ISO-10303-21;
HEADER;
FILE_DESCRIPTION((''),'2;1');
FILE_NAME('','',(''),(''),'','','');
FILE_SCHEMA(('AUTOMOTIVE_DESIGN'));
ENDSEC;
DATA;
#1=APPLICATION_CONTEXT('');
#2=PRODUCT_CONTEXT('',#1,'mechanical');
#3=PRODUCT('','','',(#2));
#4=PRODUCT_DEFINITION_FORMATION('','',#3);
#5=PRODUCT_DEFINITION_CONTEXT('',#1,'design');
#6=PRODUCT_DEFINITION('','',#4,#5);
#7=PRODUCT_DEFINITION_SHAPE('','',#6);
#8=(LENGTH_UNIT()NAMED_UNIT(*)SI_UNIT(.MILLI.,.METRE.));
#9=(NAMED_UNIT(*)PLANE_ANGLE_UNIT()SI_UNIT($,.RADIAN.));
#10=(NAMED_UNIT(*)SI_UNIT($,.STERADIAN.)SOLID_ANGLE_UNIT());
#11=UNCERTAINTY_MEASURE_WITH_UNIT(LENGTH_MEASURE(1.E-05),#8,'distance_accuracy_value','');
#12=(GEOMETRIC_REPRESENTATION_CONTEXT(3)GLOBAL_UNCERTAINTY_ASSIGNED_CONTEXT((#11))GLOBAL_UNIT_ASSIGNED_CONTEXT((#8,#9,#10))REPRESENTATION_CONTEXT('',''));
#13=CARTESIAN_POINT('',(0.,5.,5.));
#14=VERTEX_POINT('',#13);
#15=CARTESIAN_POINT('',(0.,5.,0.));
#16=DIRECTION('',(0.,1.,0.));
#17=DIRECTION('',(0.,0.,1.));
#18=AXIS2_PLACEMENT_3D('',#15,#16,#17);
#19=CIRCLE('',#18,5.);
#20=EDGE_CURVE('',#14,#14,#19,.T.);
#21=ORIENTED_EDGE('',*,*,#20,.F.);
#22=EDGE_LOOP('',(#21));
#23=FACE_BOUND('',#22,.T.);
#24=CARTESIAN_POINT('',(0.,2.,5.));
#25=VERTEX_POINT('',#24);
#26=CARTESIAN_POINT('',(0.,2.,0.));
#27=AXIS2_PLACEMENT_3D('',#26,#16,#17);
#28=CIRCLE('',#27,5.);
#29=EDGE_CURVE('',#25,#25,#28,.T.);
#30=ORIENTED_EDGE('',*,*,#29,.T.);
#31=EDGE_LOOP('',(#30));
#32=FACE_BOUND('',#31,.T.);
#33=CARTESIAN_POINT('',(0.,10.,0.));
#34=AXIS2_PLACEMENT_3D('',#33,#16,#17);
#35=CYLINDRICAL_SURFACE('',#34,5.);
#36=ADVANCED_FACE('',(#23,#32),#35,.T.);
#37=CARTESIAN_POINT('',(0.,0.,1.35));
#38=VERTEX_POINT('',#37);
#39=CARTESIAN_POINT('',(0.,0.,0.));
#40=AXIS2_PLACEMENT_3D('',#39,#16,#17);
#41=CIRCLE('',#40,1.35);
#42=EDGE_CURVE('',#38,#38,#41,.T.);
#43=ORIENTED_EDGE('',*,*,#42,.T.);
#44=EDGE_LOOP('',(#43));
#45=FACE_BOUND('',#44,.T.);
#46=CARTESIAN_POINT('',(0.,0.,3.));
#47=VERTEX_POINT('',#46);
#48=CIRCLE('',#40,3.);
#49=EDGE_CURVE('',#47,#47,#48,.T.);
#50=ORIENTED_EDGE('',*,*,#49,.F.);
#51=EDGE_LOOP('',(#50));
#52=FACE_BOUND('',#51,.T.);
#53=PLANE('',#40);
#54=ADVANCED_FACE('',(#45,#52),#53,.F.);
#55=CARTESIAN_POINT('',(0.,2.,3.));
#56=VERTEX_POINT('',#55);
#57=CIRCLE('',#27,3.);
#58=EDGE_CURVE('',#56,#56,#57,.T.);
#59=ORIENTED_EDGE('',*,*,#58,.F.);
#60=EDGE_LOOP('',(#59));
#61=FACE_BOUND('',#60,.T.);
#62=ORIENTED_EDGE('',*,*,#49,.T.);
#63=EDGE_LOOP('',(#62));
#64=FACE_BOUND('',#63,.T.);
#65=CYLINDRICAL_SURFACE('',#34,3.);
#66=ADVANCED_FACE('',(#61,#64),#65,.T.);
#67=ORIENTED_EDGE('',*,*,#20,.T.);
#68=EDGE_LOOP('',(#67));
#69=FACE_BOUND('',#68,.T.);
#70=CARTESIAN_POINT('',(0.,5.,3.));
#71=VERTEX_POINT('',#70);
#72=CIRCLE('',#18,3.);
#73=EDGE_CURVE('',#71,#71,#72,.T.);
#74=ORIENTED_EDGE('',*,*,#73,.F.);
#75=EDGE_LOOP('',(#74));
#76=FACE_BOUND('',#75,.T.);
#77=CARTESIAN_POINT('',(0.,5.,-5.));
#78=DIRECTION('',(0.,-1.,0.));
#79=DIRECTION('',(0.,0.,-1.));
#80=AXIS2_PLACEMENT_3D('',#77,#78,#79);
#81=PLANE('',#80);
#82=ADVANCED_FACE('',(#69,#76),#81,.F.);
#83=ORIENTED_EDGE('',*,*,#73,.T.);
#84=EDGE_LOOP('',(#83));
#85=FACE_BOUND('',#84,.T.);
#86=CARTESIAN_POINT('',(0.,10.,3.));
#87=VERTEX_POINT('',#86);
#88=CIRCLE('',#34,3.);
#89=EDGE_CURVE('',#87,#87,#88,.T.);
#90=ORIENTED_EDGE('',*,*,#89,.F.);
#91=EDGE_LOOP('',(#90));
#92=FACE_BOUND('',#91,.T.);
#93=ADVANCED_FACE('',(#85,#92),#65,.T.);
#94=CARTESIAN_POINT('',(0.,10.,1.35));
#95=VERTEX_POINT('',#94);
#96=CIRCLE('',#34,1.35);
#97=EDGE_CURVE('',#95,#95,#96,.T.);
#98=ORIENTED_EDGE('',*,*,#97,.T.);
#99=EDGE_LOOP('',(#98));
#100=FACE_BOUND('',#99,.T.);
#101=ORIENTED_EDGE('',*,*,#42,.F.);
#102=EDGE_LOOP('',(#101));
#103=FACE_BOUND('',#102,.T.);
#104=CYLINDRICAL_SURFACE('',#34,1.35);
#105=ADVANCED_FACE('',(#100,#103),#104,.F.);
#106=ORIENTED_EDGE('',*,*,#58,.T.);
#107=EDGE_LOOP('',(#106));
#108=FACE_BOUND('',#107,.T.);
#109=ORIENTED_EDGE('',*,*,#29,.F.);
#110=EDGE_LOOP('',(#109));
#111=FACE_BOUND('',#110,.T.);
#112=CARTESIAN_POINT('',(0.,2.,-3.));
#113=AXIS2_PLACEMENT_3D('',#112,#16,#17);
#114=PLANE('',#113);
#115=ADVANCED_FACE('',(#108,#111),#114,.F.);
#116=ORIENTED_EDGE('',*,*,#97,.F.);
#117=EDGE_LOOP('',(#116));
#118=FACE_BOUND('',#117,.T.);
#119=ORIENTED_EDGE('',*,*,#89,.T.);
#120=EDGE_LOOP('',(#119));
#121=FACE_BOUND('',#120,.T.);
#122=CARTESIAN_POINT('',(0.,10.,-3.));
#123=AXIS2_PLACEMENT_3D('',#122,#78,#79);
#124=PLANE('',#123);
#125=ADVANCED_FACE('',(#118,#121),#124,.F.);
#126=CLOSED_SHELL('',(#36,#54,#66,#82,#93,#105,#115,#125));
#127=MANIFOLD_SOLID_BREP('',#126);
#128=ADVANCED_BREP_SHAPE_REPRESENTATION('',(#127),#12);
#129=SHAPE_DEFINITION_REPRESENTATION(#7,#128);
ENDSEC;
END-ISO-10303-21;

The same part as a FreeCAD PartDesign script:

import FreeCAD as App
import Part
import Sketcher

V = App.Vector
Q = App.Units.Quantity

doc = App.newDocument("Part")
body = doc.addObject("PartDesign::Body", "Body")

# Sketch on YZ plane
sketch1 = doc.addObject("Sketcher::SketchObject", "Sketch")
body.addObject(sketch1)
sketch1.AttachmentSupport = (doc.YZ_Plane, [""])
sketch1.MapMode = "FlatFace"
sketch1.addGeometry([
    Part.LineSegment(V(0, 0, 0), V(0, -3, 0)),  # 0
    Part.LineSegment(V(0, -3, 0), V(2, -3, 0)),  # 1
    Part.LineSegment(V(2, -3, 0), V(2, -5, 0)),  # 2
    Part.LineSegment(V(2, -5, 0), V(5, -5, 0)),  # 3
    Part.LineSegment(V(5, -5, 0), V(5, -3, 0)),  # 4
    Part.LineSegment(V(5, -3, 0), V(10, -3, 0)),  # 5
    Part.LineSegment(V(10, -3, 0), V(10, 0, 0)),  # 6
    Part.LineSegment(V(10, 0, 0), V(0, 0, 0)),  # 7
], False)
sketch1.addConstraint([
    Sketcher.Constraint("Coincident", 0, 2, 1, 1),
    Sketcher.Constraint("Coincident", 1, 2, 2, 1),
    Sketcher.Constraint("Coincident", 2, 2, 3, 1),
    Sketcher.Constraint("Coincident", 3, 2, 4, 1),
    Sketcher.Constraint("Coincident", 4, 2, 5, 1),
    Sketcher.Constraint("Coincident", 5, 2, 6, 1),
    Sketcher.Constraint("Coincident", 6, 2, 7, 1),
    Sketcher.Constraint("Coincident", 7, 2, 0, 1),
    Sketcher.Constraint("Vertical", 0),
    Sketcher.Constraint("Horizontal", 1),
    Sketcher.Constraint("Vertical", 2),
    Sketcher.Constraint("Horizontal", 3),
    Sketcher.Constraint("Vertical", 4),
    Sketcher.Constraint("Horizontal", 5),
    Sketcher.Constraint("Vertical", 6),
    Sketcher.Constraint("Horizontal", 7),
    Sketcher.Constraint("Coincident", 7, 2, -1, 1),
    Sketcher.Constraint("Horizontal", 1, 2, 4, 2),
    Sketcher.Constraint("Equal", 3, 0),
    Sketcher.Constraint("Equal", 1, 2),
    Sketcher.Constraint("DistanceX", 1, 1, 1, 2, Q("2 mm")),
    Sketcher.Constraint("DistanceX", 3, 1, 3, 2, Q("3 mm")),
    Sketcher.Constraint("DistanceX", 5, 1, 5, 2, Q("5 mm")),
])
revolution = doc.addObject("PartDesign::Revolution", "Revolution")
body.addObject(revolution)
revolution.Profile = sketch1
revolution.ReferenceAxis = (sketch1, ["H_Axis"])
revolution.Angle = 360

# Sketch on XZ plane
sketch2 = doc.addObject("Sketcher::SketchObject", "Sketch001")
body.addObject(sketch2)
sketch2.AttachmentSupport = (doc.XZ_Plane, [""])
sketch2.MapMode = "FlatFace"
sketch2.AttachmentOffset = App.Placement(V(0, 0, -10), App.Rotation())
sketch2.addGeometry(Part.Circle(V(0, 0, 0), V(0, 0, 1), 1.4), False)
sketch2.addConstraint([
    Sketcher.Constraint("Coincident", 0, 3, -1, 1),
    Sketcher.Constraint("Diameter", 0, Q("2.7 mm")),
])
doc.recompute()
hole = doc.addObject("PartDesign::Hole", "Hole")
body.addObject(hole)
hole.Profile = sketch2
hole.ThreadType = "None"
hole.Diameter = 2.7
hole.DepthType = "ThroughAll"
hole.Reversed = True

doc.recompute()
